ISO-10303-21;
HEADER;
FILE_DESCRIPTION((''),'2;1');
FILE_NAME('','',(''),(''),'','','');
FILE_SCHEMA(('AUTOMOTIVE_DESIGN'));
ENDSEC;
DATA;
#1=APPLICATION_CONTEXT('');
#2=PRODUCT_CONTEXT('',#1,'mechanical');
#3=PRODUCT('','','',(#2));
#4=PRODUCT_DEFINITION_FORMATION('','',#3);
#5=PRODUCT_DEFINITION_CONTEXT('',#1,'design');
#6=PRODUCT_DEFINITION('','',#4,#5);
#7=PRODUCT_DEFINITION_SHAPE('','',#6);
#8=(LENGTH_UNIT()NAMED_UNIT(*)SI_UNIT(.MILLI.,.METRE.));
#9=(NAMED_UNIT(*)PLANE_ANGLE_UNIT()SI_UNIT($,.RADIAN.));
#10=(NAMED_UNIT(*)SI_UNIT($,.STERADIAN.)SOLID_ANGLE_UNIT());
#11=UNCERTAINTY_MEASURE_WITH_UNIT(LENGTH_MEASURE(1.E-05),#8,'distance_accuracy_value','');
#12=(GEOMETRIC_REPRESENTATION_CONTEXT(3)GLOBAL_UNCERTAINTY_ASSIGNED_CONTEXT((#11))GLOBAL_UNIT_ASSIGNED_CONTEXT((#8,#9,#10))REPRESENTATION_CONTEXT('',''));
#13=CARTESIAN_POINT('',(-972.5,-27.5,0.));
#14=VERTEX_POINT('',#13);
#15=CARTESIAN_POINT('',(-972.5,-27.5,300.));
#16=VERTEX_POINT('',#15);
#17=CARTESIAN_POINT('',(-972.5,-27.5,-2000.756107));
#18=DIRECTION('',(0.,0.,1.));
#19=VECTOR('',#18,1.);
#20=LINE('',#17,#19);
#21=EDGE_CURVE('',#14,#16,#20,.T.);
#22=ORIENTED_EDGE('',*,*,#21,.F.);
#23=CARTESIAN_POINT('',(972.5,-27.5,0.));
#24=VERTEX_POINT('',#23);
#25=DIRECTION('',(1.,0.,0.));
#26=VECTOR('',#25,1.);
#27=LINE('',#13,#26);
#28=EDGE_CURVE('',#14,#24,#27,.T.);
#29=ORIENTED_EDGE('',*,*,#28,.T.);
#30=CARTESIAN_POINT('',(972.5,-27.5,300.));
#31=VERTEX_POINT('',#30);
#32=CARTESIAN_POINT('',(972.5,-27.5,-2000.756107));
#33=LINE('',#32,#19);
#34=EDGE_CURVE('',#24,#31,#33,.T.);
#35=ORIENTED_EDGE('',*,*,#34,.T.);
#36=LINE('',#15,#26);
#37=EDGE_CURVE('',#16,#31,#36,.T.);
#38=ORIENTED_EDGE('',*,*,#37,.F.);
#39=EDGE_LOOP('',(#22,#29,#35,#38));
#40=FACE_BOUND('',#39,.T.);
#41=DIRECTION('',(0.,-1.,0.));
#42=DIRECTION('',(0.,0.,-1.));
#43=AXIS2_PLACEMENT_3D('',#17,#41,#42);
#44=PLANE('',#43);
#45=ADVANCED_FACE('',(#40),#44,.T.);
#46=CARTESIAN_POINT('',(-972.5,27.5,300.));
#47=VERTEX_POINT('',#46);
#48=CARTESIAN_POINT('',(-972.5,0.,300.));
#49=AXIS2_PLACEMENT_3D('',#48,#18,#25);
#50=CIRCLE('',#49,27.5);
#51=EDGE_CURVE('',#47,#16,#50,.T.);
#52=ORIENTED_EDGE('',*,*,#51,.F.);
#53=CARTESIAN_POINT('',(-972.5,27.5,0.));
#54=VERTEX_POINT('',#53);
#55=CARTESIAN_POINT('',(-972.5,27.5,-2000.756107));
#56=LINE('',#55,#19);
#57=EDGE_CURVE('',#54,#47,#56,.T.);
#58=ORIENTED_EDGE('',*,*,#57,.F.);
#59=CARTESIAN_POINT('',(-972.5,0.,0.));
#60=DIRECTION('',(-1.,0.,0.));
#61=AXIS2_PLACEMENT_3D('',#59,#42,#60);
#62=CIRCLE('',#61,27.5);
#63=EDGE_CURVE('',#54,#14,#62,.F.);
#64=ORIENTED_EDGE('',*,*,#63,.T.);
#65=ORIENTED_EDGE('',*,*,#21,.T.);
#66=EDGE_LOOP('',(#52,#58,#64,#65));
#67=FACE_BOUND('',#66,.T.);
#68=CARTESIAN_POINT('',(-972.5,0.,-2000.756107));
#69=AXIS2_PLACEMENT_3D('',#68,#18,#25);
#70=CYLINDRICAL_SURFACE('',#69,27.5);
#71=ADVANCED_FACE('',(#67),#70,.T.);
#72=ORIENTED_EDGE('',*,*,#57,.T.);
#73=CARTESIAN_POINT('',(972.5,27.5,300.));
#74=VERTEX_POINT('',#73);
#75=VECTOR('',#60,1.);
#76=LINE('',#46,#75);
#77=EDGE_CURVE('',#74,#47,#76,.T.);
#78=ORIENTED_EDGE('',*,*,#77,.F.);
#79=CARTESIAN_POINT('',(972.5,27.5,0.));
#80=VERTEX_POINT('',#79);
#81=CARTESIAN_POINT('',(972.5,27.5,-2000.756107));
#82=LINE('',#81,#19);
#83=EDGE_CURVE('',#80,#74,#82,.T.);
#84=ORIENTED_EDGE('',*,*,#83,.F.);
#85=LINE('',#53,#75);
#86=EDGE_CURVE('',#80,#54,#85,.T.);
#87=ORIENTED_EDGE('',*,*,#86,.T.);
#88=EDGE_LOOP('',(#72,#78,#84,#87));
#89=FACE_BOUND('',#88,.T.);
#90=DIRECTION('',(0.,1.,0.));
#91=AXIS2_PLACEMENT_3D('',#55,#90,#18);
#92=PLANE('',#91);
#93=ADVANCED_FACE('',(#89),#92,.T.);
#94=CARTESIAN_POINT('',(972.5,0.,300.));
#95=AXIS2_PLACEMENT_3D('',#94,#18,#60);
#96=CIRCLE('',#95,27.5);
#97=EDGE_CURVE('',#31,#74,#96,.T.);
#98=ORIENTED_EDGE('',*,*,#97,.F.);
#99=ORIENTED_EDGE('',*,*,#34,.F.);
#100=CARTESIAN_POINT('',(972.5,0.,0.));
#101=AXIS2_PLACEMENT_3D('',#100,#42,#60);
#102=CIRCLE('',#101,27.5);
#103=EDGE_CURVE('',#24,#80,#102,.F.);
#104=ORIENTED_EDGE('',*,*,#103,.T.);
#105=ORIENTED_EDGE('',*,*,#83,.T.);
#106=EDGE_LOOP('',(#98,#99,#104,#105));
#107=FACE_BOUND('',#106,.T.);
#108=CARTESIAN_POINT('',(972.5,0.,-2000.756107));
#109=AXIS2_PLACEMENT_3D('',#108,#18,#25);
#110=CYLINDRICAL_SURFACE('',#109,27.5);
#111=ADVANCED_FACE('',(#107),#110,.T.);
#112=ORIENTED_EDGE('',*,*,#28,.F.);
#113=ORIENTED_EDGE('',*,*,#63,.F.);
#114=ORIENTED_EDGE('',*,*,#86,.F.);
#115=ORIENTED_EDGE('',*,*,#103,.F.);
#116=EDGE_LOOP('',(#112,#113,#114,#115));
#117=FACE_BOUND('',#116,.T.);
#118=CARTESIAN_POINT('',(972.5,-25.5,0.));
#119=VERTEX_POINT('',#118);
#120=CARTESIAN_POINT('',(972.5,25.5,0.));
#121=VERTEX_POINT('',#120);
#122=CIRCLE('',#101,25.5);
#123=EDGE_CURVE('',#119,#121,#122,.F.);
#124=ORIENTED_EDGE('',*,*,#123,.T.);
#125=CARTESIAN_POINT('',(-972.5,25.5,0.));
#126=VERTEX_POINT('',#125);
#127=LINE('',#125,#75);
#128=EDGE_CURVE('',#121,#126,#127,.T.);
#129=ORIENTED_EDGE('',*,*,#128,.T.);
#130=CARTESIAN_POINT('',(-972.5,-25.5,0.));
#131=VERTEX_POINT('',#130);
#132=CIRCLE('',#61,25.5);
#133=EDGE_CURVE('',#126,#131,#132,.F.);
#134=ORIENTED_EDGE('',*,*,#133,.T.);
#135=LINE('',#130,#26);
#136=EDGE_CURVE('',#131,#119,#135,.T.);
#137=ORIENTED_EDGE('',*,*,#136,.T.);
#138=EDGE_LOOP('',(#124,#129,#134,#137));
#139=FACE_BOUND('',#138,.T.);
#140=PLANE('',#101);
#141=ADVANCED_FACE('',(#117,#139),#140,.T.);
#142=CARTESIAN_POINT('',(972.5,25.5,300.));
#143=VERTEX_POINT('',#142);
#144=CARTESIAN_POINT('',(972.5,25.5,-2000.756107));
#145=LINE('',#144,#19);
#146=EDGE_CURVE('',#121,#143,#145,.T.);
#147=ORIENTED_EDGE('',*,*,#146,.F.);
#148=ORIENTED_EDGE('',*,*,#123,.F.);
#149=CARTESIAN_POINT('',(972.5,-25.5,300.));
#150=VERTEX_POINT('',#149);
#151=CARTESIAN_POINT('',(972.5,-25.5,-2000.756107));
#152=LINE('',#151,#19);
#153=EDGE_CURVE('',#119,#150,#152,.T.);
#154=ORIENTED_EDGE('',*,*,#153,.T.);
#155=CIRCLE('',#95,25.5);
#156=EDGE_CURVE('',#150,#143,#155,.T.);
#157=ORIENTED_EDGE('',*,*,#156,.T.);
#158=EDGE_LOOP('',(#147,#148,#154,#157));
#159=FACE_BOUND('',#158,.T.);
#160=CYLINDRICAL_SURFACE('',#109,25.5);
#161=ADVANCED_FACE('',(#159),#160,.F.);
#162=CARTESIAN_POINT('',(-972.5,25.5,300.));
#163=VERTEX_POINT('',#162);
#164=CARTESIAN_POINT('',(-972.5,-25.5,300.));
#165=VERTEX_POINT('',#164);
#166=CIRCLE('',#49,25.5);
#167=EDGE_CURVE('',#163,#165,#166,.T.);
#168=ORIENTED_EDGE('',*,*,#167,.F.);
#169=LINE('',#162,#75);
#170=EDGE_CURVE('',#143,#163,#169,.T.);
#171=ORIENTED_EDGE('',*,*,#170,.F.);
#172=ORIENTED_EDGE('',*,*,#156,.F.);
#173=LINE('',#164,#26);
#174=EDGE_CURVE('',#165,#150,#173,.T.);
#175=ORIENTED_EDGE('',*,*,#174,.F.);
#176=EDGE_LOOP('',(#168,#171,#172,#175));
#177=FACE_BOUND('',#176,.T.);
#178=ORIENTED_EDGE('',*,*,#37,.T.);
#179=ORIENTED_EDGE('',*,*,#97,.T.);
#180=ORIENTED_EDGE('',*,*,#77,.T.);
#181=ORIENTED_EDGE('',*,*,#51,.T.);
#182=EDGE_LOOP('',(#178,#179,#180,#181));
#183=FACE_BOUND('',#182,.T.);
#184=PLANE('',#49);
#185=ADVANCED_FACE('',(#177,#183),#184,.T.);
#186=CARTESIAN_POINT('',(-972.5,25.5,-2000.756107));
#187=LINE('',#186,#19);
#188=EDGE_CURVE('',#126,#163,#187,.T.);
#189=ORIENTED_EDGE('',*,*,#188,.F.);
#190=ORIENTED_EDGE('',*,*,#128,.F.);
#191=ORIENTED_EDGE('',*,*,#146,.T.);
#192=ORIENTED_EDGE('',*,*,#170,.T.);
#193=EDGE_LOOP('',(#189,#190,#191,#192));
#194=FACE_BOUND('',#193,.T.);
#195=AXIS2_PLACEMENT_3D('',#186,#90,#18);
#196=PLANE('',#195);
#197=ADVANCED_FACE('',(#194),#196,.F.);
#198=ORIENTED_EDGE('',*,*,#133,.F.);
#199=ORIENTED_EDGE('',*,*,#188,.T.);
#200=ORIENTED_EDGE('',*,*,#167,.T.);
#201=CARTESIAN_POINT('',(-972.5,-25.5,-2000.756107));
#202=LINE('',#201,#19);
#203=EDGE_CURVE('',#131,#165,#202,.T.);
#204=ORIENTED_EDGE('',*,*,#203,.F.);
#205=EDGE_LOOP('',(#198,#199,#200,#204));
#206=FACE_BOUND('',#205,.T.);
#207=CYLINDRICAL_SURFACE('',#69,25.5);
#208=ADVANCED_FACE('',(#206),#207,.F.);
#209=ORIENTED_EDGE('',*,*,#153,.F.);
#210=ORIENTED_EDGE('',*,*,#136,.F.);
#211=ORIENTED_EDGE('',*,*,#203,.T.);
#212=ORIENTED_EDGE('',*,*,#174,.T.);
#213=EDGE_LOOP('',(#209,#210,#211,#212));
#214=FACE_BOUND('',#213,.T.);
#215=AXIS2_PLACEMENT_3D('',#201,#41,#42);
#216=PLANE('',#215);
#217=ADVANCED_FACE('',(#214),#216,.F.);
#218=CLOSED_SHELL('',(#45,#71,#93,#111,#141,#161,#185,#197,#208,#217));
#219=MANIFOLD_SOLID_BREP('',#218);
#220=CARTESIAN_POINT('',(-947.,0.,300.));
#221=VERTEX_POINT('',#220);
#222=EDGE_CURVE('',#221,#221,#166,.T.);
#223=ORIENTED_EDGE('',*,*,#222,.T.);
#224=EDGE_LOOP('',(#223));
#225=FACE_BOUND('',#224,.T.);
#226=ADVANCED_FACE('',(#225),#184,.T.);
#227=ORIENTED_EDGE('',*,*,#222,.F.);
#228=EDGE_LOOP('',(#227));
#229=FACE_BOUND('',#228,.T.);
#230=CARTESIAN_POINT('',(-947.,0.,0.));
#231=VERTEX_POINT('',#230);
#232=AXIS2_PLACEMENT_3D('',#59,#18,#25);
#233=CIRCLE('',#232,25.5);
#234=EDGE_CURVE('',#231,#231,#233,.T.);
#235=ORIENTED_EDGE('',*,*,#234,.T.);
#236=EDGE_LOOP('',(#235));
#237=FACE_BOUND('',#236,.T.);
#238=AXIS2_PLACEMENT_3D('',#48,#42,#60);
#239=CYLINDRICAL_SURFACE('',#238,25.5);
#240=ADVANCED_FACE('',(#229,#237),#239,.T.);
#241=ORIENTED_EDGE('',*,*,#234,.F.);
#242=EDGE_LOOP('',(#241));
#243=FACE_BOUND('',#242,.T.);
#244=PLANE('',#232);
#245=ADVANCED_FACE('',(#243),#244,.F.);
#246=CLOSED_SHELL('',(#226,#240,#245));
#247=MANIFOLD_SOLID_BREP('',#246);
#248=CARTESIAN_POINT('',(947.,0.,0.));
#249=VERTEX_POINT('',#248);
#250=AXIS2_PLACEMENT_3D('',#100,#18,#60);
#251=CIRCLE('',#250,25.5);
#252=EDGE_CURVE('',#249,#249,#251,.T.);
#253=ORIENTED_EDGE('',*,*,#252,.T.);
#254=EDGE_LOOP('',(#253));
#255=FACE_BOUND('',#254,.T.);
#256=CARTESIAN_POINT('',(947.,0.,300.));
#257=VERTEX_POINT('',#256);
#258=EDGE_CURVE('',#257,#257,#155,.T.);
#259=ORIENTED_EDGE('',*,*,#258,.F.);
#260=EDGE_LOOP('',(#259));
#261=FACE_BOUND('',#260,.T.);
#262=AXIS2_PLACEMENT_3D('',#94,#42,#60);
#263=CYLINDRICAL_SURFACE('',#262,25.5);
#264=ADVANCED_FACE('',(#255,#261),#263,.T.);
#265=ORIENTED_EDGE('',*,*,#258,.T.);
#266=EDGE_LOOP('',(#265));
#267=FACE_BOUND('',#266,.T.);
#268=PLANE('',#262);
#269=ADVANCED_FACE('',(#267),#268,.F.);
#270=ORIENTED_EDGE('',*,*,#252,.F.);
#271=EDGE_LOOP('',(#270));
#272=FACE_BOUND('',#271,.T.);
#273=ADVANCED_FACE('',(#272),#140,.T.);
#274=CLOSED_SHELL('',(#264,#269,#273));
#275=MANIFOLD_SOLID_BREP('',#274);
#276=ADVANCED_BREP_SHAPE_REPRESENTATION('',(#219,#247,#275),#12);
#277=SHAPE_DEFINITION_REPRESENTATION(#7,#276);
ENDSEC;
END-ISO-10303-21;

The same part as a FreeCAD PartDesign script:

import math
import FreeCAD as App
import Part
import Sketcher

V = App.Vector

doc = App.newDocument("Part")
body = doc.addObject("PartDesign::Body", "Body")

sketch1 = body.newObject("Sketcher::SketchObject", "Sketch")
sketch1.AttachmentSupport = (doc.getObject("XY_Plane"), [""])
sketch1.MapMode = "FlatFace"
sketch1.addGeometry(Part.Circle(V(-972, 0, 0), V(0, 0, 1), 26), False)
sketch1.addConstraint(Sketcher.Constraint("PointOnObject", 0, 3, -1))
sketch1.addConstraint(Sketcher.Constraint("Diameter", 0, 51.0))
sketch1.addConstraint(Sketcher.Constraint("DistanceX", 0, 3, -1, 1, 972.5))
pad1 = body.newObject("PartDesign::Pad", "Pad")
pad1.Profile = sketch1
pad1.Length = 300
body2 = doc.addObject("PartDesign::Body", "Body001")

sketch2 = body2.newObject("Sketcher::SketchObject", "Sketch001")
sketch2.AttachmentSupport = (doc.getObject("XY_Plane001"), [""])
sketch2.MapMode = "FlatFace"
sketch2.addGeometry(Part.Circle(V(972, 0, 0), V(0, 0, 1), 26), False)
sketch2.addConstraint(Sketcher.Constraint("PointOnObject", 0, 3, -1))
sketch2.addConstraint(Sketcher.Constraint("Diameter", 0, 51.0))
sketch2.addConstraint(Sketcher.Constraint("DistanceX", -1, 1, 0, 3, 972.5))
pad2 = body2.newObject("PartDesign::Pad", "Pad001")
pad2.Profile = sketch2
pad2.Length = 300
body3 = doc.addObject("PartDesign::Body", "Body002")

sketch3 = body3.newObject("Sketcher::SketchObject", "Sketch002")
sketch3.AttachmentSupport = (doc.getObject("XY_Plane002"), [""])
sketch3.MapMode = "FlatFace"
sketch3.AttachmentOffset = App.Placement(V(0, 0, 300), App.Rotation())
sketch3.addGeometry(Part.LineSegment(V(972, 28, 0), V(-972, 28, 0)), False)
sketch3.addGeometry(Part.ArcOfCircle(Part.Circle(V(-972, 0, 0), V(0, 0, 1), 28), math.radians(90), math.radians(270)), False)
sketch3.addGeometry(Part.LineSegment(V(-972, -28, 0), V(972, -28, 0)), False)
sketch3.addGeometry(Part.ArcOfCircle(Part.Circle(V(972, 0, 0), V(0, 0, 1), 28), math.radians(-90), math.radians(90)), False)
sketch3.addGeometry(Part.LineSegment(V(-972, 26, 0), V(972, 26, 0)), False)
sketch3.addGeometry(Part.ArcOfCircle(Part.Circle(V(972, 0, 0), V(0, 0, 1), 26), math.radians(-90), math.radians(90)), False)
sketch3.addGeometry(Part.LineSegment(V(972, -26, 0), V(-972, -26, 0)), False)
sketch3.addGeometry(Part.ArcOfCircle(Part.Circle(V(-972, 0, 0), V(0, 0, 1), 26), math.radians(90), math.radians(270)), False)
sketch3.addConstraint(Sketcher.Constraint("Tangent", 0, 2, 1, 1))
sketch3.addConstraint(Sketcher.Constraint("Tangent", 1, 2, 2, 1))
sketch3.addConstraint(Sketcher.Constraint("Tangent", 2, 2, 3, 1))
sketch3.addConstraint(Sketcher.Constraint("Tangent", 3, 2, 0, 1))
sketch3.addConstraint(Sketcher.Constraint("Tangent", 4, 2, 5, 2))
sketch3.addConstraint(Sketcher.Constraint("Tangent", 5, 1, 6, 1))
sketch3.addConstraint(Sketcher.Constraint("Tangent", 6, 2, 7, 2))
sketch3.addConstraint(Sketcher.Constraint("Tangent", 7, 1, 4, 1))
sketch3.addConstraint(Sketcher.Constraint("Horizontal", 0))
sketch3.addConstraint(Sketcher.Constraint("Horizontal", 2))
sketch3.addConstraint(Sketcher.Constraint("Horizontal", 4))
sketch3.addConstraint(Sketcher.Constraint("Horizontal", 6))
sketch3.addConstraint(Sketcher.Constraint("Coincident", 5, 3, 3, 3))
sketch3.addConstraint(Sketcher.Constraint("Symmetric", 1, 3, 3, 3, -1, 1))
sketch3.addConstraint(Sketcher.Constraint("Vertical", 7, 3, 0, 2))
sketch3.addConstraint(Sketcher.Constraint("Radius", 1, 27.5))
sketch3.addConstraint(Sketcher.Constraint("Radius", 5, 25.5))
sketch3.addConstraint(Sketcher.Constraint("DistanceX", 0, 2, 0, 1, 1945.0))
pad3 = body3.newObject("PartDesign::Pad", "Pad002")
pad3.Profile = sketch3
pad3.Length = 300
pad3.Reversed = True

doc.recompute()
